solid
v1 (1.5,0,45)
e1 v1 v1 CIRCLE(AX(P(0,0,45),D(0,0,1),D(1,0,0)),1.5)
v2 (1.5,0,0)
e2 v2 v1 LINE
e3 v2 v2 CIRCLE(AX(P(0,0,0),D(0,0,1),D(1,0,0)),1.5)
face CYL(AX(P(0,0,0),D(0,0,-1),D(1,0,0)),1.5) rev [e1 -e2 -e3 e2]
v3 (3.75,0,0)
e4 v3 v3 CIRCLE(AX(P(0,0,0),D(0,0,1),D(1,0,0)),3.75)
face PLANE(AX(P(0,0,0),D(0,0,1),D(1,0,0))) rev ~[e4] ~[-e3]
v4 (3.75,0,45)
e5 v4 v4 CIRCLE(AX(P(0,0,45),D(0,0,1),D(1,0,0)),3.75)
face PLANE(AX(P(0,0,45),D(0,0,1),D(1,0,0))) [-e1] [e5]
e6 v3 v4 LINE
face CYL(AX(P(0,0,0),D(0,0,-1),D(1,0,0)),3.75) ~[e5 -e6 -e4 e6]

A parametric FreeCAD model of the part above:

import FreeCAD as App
import Part
import Sketcher

V = App.Vector

doc = App.newDocument("Part")
body = doc.addObject("PartDesign::Body", "Body")

sketch1 = doc.addObject("Sketcher::SketchObject", "Sketch")
body.addObject(sketch1)
sketch1.AttachmentSupport = (doc.XY_Plane, [""])
sketch1.MapMode = "FlatFace"
sketch1.addGeometry([
    Part.Circle(V(0, 0, 0), V(0, 0, 1), 3.75),
    Part.Circle(V(0, 0, 0), V(0, 0, 1), 1.5),
], False)
sketch1.addConstraint([
    Sketcher.Constraint("Coincident", 0, 3, -1, 1),
    Sketcher.Constraint("Coincident", 1, 3, -1, 1),
    Sketcher.Constraint("Diameter", 1, 3.0),
    Sketcher.Constraint("Diameter", 0, 7.5),
])
pad1 = doc.addObject("PartDesign::Pad", "Pad")
body.addObject(pad1)
pad1.Profile = sketch1
pad1.Length = 45

doc.recompute()
